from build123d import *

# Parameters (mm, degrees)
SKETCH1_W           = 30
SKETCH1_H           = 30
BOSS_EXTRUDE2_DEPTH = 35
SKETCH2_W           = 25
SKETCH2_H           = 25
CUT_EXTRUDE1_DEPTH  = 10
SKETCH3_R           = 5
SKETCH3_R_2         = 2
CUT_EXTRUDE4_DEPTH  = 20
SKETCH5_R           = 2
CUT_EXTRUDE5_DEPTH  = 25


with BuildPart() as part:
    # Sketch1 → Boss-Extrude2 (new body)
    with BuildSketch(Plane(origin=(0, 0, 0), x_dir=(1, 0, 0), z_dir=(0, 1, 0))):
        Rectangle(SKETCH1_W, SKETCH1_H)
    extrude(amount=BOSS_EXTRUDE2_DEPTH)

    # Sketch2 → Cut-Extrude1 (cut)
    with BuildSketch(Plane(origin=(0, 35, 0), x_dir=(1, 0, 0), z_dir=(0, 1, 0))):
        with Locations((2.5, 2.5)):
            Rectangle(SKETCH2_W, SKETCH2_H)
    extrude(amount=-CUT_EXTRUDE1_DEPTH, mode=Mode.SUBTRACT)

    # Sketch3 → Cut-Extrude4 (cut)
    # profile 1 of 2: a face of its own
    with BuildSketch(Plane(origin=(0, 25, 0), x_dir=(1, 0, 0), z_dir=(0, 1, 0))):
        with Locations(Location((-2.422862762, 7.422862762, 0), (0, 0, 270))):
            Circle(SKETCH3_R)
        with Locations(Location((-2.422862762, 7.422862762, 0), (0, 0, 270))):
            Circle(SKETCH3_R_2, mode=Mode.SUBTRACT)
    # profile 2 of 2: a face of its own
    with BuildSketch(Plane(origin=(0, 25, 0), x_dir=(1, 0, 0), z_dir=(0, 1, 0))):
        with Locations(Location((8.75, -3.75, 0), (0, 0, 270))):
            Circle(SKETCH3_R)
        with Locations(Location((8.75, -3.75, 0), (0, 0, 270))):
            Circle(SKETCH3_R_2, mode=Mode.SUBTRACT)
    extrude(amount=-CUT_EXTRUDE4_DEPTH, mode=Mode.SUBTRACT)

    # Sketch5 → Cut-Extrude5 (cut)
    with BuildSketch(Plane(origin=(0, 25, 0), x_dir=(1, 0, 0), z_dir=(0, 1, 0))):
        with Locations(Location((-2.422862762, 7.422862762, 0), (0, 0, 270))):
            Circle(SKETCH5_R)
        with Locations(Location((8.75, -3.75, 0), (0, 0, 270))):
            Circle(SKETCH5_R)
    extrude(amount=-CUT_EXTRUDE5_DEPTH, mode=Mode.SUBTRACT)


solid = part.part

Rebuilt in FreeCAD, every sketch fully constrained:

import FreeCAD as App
import Part
import Sketcher
from FreeCAD import Vector
Q = App.Units.Quantity

doc = App.newDocument("Part")
body = doc.addObject("PartDesign::Body", "Body")

# Sketch on XZ plane
sketch1 = doc.addObject("Sketcher::SketchObject", "Sketch")
body.addObject(sketch1)
sketch1.AttachmentSupport = (doc.XZ_Plane, [""])
sketch1.MapMode = "FlatFace"
sketch1.addGeometry([
    Part.LineSegment(Vector(-15, -15, 0), Vector(-15, 15, 0)),
    Part.LineSegment(Vector(-15, 15, 0), Vector(15, 15, 0)),
    Part.LineSegment(Vector(15, 15, 0), Vector(15, -15, 0)),
    Part.LineSegment(Vector(15, -15, 0), Vector(-15, -15, 0)),
], False)
sketch1.addConstraint([
    Sketcher.Constraint("Coincident", 0, 2, 1, 1),
    Sketcher.Constraint("Coincident", 1, 2, 2, 1),
    Sketcher.Constraint("Coincident", 2, 2, 3, 1),
    Sketcher.Constraint("Coincident", 3, 2, 0, 1),
    Sketcher.Constraint("Vertical", 0),
    Sketcher.Constraint("Horizontal", 1),
    Sketcher.Constraint("Vertical", 2),
    Sketcher.Constraint("Horizontal", 3),
    Sketcher.Constraint("Symmetric", 0, 2, 2, 2, -1, 1),
    Sketcher.Constraint("Equal", 3, 0),
    Sketcher.Constraint("DistanceX", 1, 1, 1, 2, Q("30 mm")),
])
pad1 = doc.addObject("PartDesign::Pad", "Pad")
body.addObject(pad1)
pad1.Profile = sketch1
pad1.Length = 35
pad1.Reversed = True

# Sketch on XZ plane
sketch2 = doc.addObject("Sketcher::SketchObject", "Sketch001")
body.addObject(sketch2)
sketch2.AttachmentSupport = (doc.XZ_Plane, [""])
sketch2.MapMode = "FlatFace"
sketch2.AttachmentOffset = App.Placement(Vector(0, 0, -35), App.Rotation())
sketch2.addGeometry([
    Part.LineSegment(Vector(-10, -15, 0), Vector(-10, 10, 0)),
    Part.LineSegment(Vector(-10, 10, 0), Vector(15, 10, 0)),
    Part.LineSegment(Vector(15, 10, 0), Vector(15, -15, 0)),
    Part.LineSegment(Vector(15, -15, 0), Vector(-10, -15, 0)),
], False)
sketch2.addConstraint([
    Sketcher.Constraint("Coincident", 0, 2, 1, 1),
    Sketcher.Constraint("Coincident", 1, 2, 2, 1),
    Sketcher.Constraint("Coincident", 2, 2, 3, 1),
    Sketcher.Constraint("Coincident", 3, 2, 0, 1),
    Sketcher.Constraint("Vertical", 0),
    Sketcher.Constraint("Horizontal", 1),
    Sketcher.Constraint("Vertical", 2),
    Sketcher.Constraint("Horizontal", 3),
    Sketcher.Constraint("Equal", 3, 0),
    Sketcher.Constraint("DistanceX", 1, 1, 1, 2, Q("25 mm")),
    Sketcher.Constraint("DistanceX", 0, 2, -1, 1, Q("10 mm")),
    Sketcher.Constraint("DistanceY", -1, 1, 0, 2, Q("10 mm")),
])
pocket1 = doc.addObject("PartDesign::Pocket", "Pocket")
body.addObject(pocket1)
pocket1.Profile = sketch2
pocket1.Length = 10
pocket1.Reversed = True

# Sketch on XZ plane
sketch3 = doc.addObject("Sketcher::SketchObject", "Sketch002")
body.addObject(sketch3)
sketch3.AttachmentSupport = (doc.XZ_Plane, [""])
sketch3.MapMode = "FlatFace"
sketch3.AttachmentOffset = App.Placement(Vector(0, 0, -25), App.Rotation())
sketch3.addGeometry([
    Part.Circle(Vector(-2.4, -7.4, 0), Vector(0, 0, 1), 5),
    Part.Circle(Vector(-2.4, -7.4, 0), Vector(0, 0, 1), 2),
    Part.Circle(Vector(8.8, 3.8, 0), Vector(0, 0, 1), 5),
    Part.Circle(Vector(8.8, 3.8, 0), Vector(0, 0, 1), 2),
], False)
sketch3.addConstraint([
    Sketcher.Constraint("Coincident", 1, 3, 0, 3),
    Sketcher.Constraint("Coincident", 3, 3, 2, 3),
    Sketcher.Constraint("Equal", 0, 2),
    Sketcher.Constraint("Equal", 1, 3),
    Sketcher.Constraint("Diameter", 0, Q("10 mm")),
    Sketcher.Constraint("Diameter", 1, Q("4 mm")),
    Sketcher.Constraint("DistanceX", -1, 1, 2, 3, Q("8.75 mm")),
    Sketcher.Constraint("DistanceY", -1, 1, 2, 3, Q("3.75 mm")),
    Sketcher.Constraint("DistanceX", 0, 3, -1, 1, Q("2.422863 mm")),
    Sketcher.Constraint("DistanceY", 0, 3, -1, 1, Q("7.422863 mm")),
])
pocket2 = doc.addObject("PartDesign::Pocket", "Pocket001")
body.addObject(pocket2)
pocket2.Profile = sketch3
pocket2.Length = 20
pocket2.Reversed = True

# Sketch on XZ plane
sketch4 = doc.addObject("Sketcher::SketchObject", "Sketch003")
body.addObject(sketch4)
sketch4.AttachmentSupport = (doc.XZ_Plane, [""])
sketch4.MapMode = "FlatFace"
sketch4.AttachmentOffset = App.Placement(Vector(0, 0, -25), App.Rotation())
sketch4.addGeometry([
    Part.Circle(Vector(-2.4, -7.4, 0), Vector(0, 0, 1), 2),
    Part.Circle(Vector(8.8, 3.8, 0), Vector(0, 0, 1), 2),
], False)
sketch4.addConstraint([
    Sketcher.Constraint("Equal", 0, 1),
    Sketcher.Constraint("Diameter", 0, Q("4 mm")),
    Sketcher.Constraint("DistanceX", -1, 1, 1, 3, Q("8.75 mm")),
    Sketcher.Constraint("DistanceY", -1, 1, 1, 3, Q("3.75 mm")),
    Sketcher.Constraint("DistanceX", 0, 3, -1, 1, Q("2.422863 mm")),
    Sketcher.Constraint("DistanceY", 0, 3, -1, 1, Q("7.422863 mm")),
])
pocket3 = doc.addObject("PartDesign::Pocket", "Pocket002")
body.addObject(pocket3)
pocket3.Profile = sketch4
pocket3.Length = 25
pocket3.Reversed = True

doc.recompute()
